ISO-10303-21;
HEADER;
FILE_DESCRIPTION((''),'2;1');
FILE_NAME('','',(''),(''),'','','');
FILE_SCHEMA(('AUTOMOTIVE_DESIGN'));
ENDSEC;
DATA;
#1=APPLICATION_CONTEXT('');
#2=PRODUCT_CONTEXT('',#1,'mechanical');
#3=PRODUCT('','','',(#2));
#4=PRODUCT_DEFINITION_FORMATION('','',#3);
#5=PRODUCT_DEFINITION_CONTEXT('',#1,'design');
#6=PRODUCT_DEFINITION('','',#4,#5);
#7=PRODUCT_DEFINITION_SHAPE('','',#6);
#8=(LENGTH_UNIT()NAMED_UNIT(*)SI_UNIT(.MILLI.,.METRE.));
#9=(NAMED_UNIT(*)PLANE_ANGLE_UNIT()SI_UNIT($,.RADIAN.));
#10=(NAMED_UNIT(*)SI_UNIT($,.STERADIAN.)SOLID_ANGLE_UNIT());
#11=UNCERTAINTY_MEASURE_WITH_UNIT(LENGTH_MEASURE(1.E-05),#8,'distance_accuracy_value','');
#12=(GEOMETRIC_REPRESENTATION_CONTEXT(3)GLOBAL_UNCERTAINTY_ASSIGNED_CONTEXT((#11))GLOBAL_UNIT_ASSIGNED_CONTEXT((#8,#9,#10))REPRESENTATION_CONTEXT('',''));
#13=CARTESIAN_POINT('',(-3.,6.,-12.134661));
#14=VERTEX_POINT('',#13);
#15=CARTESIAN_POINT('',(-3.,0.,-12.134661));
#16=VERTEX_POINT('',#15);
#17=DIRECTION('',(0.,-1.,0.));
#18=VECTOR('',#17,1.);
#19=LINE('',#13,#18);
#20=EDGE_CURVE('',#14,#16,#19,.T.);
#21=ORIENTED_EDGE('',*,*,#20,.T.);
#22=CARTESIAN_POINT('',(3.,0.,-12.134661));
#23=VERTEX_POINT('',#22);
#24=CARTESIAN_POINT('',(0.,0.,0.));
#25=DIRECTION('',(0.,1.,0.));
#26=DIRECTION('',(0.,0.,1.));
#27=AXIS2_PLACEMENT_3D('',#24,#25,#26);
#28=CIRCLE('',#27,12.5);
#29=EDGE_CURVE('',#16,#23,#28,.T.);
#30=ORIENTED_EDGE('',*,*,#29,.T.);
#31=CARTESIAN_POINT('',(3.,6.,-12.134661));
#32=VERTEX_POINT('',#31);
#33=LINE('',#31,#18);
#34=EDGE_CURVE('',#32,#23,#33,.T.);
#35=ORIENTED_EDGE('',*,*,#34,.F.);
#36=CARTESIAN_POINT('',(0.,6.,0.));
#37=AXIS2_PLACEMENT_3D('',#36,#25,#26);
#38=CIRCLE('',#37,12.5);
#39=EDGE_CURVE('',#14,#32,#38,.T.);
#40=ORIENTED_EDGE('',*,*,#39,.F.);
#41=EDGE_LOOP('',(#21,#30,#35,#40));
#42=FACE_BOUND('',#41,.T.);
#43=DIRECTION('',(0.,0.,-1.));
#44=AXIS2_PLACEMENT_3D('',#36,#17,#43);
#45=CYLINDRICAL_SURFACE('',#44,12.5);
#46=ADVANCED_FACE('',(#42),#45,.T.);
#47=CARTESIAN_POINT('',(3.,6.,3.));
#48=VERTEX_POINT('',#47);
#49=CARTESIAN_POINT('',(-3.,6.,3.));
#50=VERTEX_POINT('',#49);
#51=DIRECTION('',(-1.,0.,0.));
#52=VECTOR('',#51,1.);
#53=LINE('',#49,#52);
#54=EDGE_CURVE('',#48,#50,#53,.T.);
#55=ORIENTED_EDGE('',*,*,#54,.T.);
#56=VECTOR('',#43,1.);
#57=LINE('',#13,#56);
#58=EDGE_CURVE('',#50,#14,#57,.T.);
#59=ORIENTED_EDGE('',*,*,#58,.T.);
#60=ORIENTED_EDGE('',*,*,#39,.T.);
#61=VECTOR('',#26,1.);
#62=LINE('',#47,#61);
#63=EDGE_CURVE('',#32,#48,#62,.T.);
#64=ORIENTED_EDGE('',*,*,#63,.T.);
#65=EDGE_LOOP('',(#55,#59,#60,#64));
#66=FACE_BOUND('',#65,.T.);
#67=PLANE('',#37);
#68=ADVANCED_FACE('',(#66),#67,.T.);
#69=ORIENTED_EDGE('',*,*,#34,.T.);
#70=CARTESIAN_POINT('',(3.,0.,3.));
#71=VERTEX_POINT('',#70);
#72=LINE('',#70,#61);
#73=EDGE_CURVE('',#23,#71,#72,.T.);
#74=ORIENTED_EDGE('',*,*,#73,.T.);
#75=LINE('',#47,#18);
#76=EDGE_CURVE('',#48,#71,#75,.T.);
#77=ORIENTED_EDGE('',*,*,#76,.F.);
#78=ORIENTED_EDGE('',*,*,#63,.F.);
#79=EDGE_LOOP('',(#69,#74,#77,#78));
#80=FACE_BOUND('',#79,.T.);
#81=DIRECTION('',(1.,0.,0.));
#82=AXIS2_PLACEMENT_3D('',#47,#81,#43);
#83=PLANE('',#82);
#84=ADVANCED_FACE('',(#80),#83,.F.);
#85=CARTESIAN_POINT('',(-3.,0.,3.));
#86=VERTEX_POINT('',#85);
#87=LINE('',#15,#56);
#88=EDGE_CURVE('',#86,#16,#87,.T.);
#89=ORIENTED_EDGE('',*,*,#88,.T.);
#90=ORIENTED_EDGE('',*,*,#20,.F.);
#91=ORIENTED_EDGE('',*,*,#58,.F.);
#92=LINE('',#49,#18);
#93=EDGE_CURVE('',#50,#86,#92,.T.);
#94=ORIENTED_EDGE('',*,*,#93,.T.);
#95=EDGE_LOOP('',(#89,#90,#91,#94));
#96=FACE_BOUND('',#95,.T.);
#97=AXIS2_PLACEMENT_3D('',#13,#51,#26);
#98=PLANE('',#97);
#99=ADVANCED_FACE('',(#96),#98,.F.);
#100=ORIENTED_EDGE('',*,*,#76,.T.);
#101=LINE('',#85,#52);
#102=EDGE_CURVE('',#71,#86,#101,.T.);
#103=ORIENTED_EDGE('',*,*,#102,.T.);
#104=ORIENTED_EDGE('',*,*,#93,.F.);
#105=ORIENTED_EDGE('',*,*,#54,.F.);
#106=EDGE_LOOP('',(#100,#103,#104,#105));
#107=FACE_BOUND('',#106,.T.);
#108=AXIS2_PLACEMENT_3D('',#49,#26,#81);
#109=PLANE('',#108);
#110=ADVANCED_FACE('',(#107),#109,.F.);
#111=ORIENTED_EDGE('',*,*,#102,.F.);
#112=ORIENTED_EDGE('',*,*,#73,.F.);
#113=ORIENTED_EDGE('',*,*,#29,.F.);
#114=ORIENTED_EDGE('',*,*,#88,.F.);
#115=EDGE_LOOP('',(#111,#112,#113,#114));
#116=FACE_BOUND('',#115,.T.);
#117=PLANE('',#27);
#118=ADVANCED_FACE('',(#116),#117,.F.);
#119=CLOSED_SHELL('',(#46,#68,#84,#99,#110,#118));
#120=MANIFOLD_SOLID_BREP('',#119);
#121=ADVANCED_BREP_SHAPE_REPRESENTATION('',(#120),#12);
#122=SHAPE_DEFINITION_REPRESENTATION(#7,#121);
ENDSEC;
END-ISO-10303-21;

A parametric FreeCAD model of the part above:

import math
import FreeCAD as App
import Part
import Sketcher
Q = App.Units.Quantity

doc = App.newDocument("Part")
body = doc.addObject("PartDesign::Body", "Body")

# Sketch on XZ plane
sketch1 = body.newObject("Sketcher::SketchObject", "Sketch")
sketch1.AttachmentSupport = (doc.getObject("XZ_Plane"), [""])
sketch1.MapMode = "FlatFace"
sketch1.addGeometry([
    Part.LineSegment(App.Vector(-3, 3, 0), App.Vector(-3, -12, 0)),
    Part.ArcOfCircle(Part.Circle(App.Vector(0, 0, 0), App.Vector(0, 0, 1), 12), math.radians(-76), math.radians(256)),
    Part.LineSegment(App.Vector(3, -12, 0), App.Vector(3, 3, 0)),
    Part.LineSegment(App.Vector(3, 3, 0), App.Vector(-3, 3, 0)),
], False)
sketch1.addConstraint([
    Sketcher.Constraint("Coincident", 0, 2, 1, 2),
    Sketcher.Constraint("Coincident", 1, 1, 2, 1),
    Sketcher.Constraint("Coincident", 2, 2, 3, 1),
    Sketcher.Constraint("Coincident", 3, 2, 0, 1),
    Sketcher.Constraint("Vertical", 0),
    Sketcher.Constraint("Vertical", 2),
    Sketcher.Constraint("Horizontal", 3),
    Sketcher.Constraint("Coincident", 1, 3, -1, 1),
    Sketcher.Constraint("Horizontal", 0, 2, 1, 1),
    Sketcher.Constraint("Radius", 1, Q("12.5 mm")),
    Sketcher.Constraint("DistanceX", 3, 2, 3, 1, Q("6 mm")),
    Sketcher.Constraint("DistanceY", -1, 1, 2, 2, Q("3 mm")),
])
pad1 = body.newObject("PartDesign::Pad", "Pad")
pad1.Profile = sketch1
pad1.Length = 6
pad1.Reversed = True

doc.recompute()
